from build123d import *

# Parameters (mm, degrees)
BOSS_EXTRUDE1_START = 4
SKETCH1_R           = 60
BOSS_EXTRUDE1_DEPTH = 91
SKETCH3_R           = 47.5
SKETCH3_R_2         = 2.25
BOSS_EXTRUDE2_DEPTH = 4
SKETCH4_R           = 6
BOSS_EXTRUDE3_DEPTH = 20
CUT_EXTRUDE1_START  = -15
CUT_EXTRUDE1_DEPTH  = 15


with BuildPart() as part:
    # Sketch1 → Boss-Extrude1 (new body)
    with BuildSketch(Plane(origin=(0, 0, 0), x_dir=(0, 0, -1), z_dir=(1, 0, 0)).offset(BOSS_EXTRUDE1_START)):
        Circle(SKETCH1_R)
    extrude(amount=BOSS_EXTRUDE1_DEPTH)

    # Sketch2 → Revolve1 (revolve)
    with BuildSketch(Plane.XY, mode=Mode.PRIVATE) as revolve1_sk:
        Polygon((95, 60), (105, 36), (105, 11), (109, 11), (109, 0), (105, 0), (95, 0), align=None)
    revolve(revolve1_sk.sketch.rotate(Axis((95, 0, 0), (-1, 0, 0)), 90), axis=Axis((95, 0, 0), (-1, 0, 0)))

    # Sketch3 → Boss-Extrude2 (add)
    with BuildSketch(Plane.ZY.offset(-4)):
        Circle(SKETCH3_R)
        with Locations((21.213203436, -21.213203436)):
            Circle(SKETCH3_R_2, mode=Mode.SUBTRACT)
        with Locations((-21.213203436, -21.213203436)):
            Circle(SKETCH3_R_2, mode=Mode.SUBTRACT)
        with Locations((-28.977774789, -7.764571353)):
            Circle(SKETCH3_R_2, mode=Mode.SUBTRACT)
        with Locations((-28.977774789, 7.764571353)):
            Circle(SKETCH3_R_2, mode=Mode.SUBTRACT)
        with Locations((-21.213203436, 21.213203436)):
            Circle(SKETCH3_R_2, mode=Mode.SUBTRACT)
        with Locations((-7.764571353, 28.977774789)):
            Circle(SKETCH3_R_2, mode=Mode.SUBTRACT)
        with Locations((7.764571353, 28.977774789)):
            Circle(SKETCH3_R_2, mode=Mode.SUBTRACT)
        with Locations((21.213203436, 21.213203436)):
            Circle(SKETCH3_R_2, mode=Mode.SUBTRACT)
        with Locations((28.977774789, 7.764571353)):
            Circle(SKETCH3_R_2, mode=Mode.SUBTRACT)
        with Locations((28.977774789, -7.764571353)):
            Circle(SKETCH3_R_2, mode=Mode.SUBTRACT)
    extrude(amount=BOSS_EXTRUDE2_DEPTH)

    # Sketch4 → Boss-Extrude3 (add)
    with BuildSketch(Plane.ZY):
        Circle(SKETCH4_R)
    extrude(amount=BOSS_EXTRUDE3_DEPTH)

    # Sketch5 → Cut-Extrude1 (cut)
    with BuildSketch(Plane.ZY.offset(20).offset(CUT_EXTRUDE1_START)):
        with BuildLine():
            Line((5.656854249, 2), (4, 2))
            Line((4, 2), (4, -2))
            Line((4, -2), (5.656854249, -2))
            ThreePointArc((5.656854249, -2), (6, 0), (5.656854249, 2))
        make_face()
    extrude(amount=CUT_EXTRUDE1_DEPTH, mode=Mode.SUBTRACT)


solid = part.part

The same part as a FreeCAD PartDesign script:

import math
import FreeCAD as App
import Part
import Sketcher

V = App.Vector


def add_polygon(sketch, points):
    """Adds a closed chain of lines whose ends are joined by coincident constraints."""
    first, n = sketch.GeometryCount, len(points)
    for a, b in zip(points, points[1:] + points[:1]):
        sketch.addGeometry(Part.LineSegment(App.Vector(*a, 0), App.Vector(*b, 0)), False)
    for i in range(n):
        sketch.addConstraint(Sketcher.Constraint("Coincident", first + i, 2, first + (i + 1) % n, 1))

doc = App.newDocument("Part")
body = doc.addObject("PartDesign::Body", "Body")

sketch1 = body.newObject("Sketcher::SketchObject", "Sketch")
sketch1.AttachmentSupport = (doc.getObject("YZ_Plane"), [""])
sketch1.MapMode = "FlatFace"
sketch1.AttachmentOffset = App.Placement(V(0, 0, 4), App.Rotation())
sketch1.addGeometry(Part.Circle(V(0, 0, 0), V(0, 0, 1), 60), False)
sketch1.addConstraint([
    Sketcher.Constraint("Coincident", 0, 3, -1, 1),
    Sketcher.Constraint("Diameter", 0, 120.0),
])
pad1 = body.newObject("PartDesign::Pad", "Pad")
pad1.Profile = sketch1
pad1.Length = 91

sketch2 = body.newObject("Sketcher::SketchObject", "Sketch001")
sketch2.AttachmentSupport = (doc.getObject("XY_Plane"), [""])
sketch2.MapMode = "FlatFace"
add_polygon(sketch2, [(105, 36), (95, 60), (95, 0), (109, 0), (109, 11), (105, 11)])
sketch2.addConstraint([
    Sketcher.Constraint("Vertical", 1),
    Sketcher.Constraint("Horizontal", 2),
    Sketcher.Constraint("Vertical", 3),
    Sketcher.Constraint("Horizontal", 4),
    Sketcher.Constraint("Vertical", 5),
    Sketcher.Constraint("PointOnObject", 1, 2, -1),
    Sketcher.Constraint("DistanceX", 2, 1, 2, 2, 14.0),
    Sketcher.Constraint("DistanceX", 4, 2, 4, 1, 4.0),
    Sketcher.Constraint("DistanceY", 1, 2, 1, 1, 60.0),
    Sketcher.Constraint("DistanceY", 3, 1, 3, 2, 11.0),
    Sketcher.Constraint("DistanceY", 5, 1, 5, 2, 25.0),
    Sketcher.Constraint("DistanceX", -1, 1, 0, 2, 95.0),
])
revolution = body.newObject("PartDesign::Revolution", "Revolution")
revolution.Profile = sketch2
revolution.ReferenceAxis = (sketch2, ["H_Axis"])
revolution.Angle = 360

sketch3 = body.newObject("Sketcher::SketchObject", "Sketch002")
sketch3.AttachmentSupport = (doc.getObject("YZ_Plane"), [""])
sketch3.MapMode = "FlatFace"
sketch3.AttachmentOffset = App.Placement(V(0, 0, 4), App.Rotation())
sketch3.addGeometry([
    Part.Circle(V(0, 0, 0), V(0, 0, 1), 47.5),
    Part.Circle(V(-21.213203, -21.213203, 0), V(0, 0, 1), 2.25),
    Part.Circle(V(-7.764571, -28.977775, 0), V(0, 0, 1), 2.25),
    Part.Circle(V(-21.213203, 21.213203, 0), V(0, 0, 1), 2.25),
    Part.Circle(V(-7.764571, 28.977775, 0), V(0, 0, 1), 2.25),
    Part.Circle(V(7.764571, -28.977775, 0), V(0, 0, 1), 2.25),
    Part.Circle(V(21.213203, -21.213203, 0), V(0, 0, 1), 2.25),
    Part.Circle(V(28.977775, -7.764571, 0), V(0, 0, 1), 2.25),
    Part.Circle(V(7.764571, 28.977775, 0), V(0, 0, 1), 2.25),
    Part.Circle(V(28.977775, 7.764571, 0), V(0, 0, 1), 2.25),
    Part.Circle(V(21.213203, 21.213203, 0), V(0, 0, 1), 2.25),
], False)
sketch3.addConstraint([
    Sketcher.Constraint("Coincident", 0, 3, -1, 1),
    Sketcher.Constraint("Equal", 1, 2),
    Sketcher.Constraint("Equal", 2, 3),
    Sketcher.Constraint("Equal", 3, 4),
    Sketcher.Constraint("Equal", 4, 5),
    Sketcher.Constraint("Equal", 5, 6),
    Sketcher.Constraint("Equal", 6, 7),
    Sketcher.Constraint("Equal", 7, 8),
    Sketcher.Constraint("Equal", 8, 9),
    Sketcher.Constraint("Equal", 9, 10),
    Sketcher.Constraint("Symmetric", 4, 3, 5, 3, -1, 1),
    Sketcher.Constraint("Symmetric", 3, 3, 6, 3, -1, 1),
    Sketcher.Constraint("Symmetric", 2, 3, 8, 3, -1, 1),
    Sketcher.Constraint("Symmetric", 1, 3, 10, 3, -1, 1),
    Sketcher.Constraint("Symmetric", 2, 3, 5, 3, -2),
    Sketcher.Constraint("Symmetric", 1, 3, 6, 3, -2),
    Sketcher.Constraint("Symmetric", 7, 3, 9, 3, -1),
    Sketcher.Constraint("Diameter", 0, 95.0),
    Sketcher.Constraint("Diameter", 1, 4.5),
    Sketcher.Constraint("DistanceX", 2, 3, -1, 1, 7.764571),
    Sketcher.Constraint("DistanceY", 7, 3, -1, 1, 7.764571),
    Sketcher.Constraint("DistanceY", 2, 3, 1, 3, 7.764571),
    Sketcher.Constraint("DistanceY", 2, 3, 3, 3, 50.190978),
    Sketcher.Constraint("DistanceX", 6, 3, 7, 3, 7.764571),
    Sketcher.Constraint("DistanceX", 1, 3, -1, 1, 21.213203),
])
pad2 = body.newObject("PartDesign::Pad", "Pad001")
pad2.Profile = sketch3
pad2.Length = 4
pad2.Reversed = True

sketch4 = body.newObject("Sketcher::SketchObject", "Sketch003")
sketch4.AttachmentSupport = (doc.getObject("YZ_Plane"), [""])
sketch4.MapMode = "FlatFace"
sketch4.addGeometry(Part.Circle(V(0, 0, 0), V(0, 0, 1), 6), False)
sketch4.addConstraint([
    Sketcher.Constraint("Coincident", 0, 3, -1, 1),
    Sketcher.Constraint("Diameter", 0, 12.0),
])
pad3 = body.newObject("PartDesign::Pad", "Pad002")
pad3.Profile = sketch4
pad3.Length = 20
pad3.Reversed = True

sketch5 = body.newObject("Sketcher::SketchObject", "Sketch004")
sketch5.AttachmentSupport = (doc.getObject("YZ_Plane"), [""])
sketch5.MapMode = "FlatFace"
sketch5.AttachmentOffset = App.Placement(V(0, 0, -5), App.Rotation())
sketch5.addGeometry([
    Part.LineSegment(V(2, 5.656854, 0), V(2, 4, 0)),
    Part.LineSegment(V(2, 4, 0), V(-2, 4, 0)),
    Part.LineSegment(V(-2, 4, 0), V(-2, 5.656854, 0)),
    Part.ArcOfCircle(Part.Circle(V(0, 0, 0), V(0, 0, 1), 6), math.radians(70.528779), math.radians(109.471221)),
], False)
sketch5.addConstraint([
    Sketcher.Constraint("Coincident", 0, 2, 1, 1),
    Sketcher.Constraint("Coincident", 1, 2, 2, 1),
    Sketcher.Constraint("Coincident", 2, 2, 3, 2),
    Sketcher.Constraint("Coincident", 3, 1, 0, 1),
    Sketcher.Constraint("Vertical", 0),
    Sketcher.Constraint("Horizontal", 1),
    Sketcher.Constraint("Vertical", 2),
    Sketcher.Constraint("Coincident", 3, 3, -1, 1),
    Sketcher.Constraint("Horizontal", 2, 2, 3, 1),
    Sketcher.Constraint("Radius", 3, 6.0),
    Sketcher.Constraint("DistanceX", 1, 2, 1, 1, 4.0),
    Sketcher.Constraint("DistanceY", -1, 1, 0, 2, 4.0),
])
pocket1 = body.newObject("PartDesign::Pocket", "Pocket")
pocket1.Profile = sketch5
pocket1.Length = 15

doc.recompute()
